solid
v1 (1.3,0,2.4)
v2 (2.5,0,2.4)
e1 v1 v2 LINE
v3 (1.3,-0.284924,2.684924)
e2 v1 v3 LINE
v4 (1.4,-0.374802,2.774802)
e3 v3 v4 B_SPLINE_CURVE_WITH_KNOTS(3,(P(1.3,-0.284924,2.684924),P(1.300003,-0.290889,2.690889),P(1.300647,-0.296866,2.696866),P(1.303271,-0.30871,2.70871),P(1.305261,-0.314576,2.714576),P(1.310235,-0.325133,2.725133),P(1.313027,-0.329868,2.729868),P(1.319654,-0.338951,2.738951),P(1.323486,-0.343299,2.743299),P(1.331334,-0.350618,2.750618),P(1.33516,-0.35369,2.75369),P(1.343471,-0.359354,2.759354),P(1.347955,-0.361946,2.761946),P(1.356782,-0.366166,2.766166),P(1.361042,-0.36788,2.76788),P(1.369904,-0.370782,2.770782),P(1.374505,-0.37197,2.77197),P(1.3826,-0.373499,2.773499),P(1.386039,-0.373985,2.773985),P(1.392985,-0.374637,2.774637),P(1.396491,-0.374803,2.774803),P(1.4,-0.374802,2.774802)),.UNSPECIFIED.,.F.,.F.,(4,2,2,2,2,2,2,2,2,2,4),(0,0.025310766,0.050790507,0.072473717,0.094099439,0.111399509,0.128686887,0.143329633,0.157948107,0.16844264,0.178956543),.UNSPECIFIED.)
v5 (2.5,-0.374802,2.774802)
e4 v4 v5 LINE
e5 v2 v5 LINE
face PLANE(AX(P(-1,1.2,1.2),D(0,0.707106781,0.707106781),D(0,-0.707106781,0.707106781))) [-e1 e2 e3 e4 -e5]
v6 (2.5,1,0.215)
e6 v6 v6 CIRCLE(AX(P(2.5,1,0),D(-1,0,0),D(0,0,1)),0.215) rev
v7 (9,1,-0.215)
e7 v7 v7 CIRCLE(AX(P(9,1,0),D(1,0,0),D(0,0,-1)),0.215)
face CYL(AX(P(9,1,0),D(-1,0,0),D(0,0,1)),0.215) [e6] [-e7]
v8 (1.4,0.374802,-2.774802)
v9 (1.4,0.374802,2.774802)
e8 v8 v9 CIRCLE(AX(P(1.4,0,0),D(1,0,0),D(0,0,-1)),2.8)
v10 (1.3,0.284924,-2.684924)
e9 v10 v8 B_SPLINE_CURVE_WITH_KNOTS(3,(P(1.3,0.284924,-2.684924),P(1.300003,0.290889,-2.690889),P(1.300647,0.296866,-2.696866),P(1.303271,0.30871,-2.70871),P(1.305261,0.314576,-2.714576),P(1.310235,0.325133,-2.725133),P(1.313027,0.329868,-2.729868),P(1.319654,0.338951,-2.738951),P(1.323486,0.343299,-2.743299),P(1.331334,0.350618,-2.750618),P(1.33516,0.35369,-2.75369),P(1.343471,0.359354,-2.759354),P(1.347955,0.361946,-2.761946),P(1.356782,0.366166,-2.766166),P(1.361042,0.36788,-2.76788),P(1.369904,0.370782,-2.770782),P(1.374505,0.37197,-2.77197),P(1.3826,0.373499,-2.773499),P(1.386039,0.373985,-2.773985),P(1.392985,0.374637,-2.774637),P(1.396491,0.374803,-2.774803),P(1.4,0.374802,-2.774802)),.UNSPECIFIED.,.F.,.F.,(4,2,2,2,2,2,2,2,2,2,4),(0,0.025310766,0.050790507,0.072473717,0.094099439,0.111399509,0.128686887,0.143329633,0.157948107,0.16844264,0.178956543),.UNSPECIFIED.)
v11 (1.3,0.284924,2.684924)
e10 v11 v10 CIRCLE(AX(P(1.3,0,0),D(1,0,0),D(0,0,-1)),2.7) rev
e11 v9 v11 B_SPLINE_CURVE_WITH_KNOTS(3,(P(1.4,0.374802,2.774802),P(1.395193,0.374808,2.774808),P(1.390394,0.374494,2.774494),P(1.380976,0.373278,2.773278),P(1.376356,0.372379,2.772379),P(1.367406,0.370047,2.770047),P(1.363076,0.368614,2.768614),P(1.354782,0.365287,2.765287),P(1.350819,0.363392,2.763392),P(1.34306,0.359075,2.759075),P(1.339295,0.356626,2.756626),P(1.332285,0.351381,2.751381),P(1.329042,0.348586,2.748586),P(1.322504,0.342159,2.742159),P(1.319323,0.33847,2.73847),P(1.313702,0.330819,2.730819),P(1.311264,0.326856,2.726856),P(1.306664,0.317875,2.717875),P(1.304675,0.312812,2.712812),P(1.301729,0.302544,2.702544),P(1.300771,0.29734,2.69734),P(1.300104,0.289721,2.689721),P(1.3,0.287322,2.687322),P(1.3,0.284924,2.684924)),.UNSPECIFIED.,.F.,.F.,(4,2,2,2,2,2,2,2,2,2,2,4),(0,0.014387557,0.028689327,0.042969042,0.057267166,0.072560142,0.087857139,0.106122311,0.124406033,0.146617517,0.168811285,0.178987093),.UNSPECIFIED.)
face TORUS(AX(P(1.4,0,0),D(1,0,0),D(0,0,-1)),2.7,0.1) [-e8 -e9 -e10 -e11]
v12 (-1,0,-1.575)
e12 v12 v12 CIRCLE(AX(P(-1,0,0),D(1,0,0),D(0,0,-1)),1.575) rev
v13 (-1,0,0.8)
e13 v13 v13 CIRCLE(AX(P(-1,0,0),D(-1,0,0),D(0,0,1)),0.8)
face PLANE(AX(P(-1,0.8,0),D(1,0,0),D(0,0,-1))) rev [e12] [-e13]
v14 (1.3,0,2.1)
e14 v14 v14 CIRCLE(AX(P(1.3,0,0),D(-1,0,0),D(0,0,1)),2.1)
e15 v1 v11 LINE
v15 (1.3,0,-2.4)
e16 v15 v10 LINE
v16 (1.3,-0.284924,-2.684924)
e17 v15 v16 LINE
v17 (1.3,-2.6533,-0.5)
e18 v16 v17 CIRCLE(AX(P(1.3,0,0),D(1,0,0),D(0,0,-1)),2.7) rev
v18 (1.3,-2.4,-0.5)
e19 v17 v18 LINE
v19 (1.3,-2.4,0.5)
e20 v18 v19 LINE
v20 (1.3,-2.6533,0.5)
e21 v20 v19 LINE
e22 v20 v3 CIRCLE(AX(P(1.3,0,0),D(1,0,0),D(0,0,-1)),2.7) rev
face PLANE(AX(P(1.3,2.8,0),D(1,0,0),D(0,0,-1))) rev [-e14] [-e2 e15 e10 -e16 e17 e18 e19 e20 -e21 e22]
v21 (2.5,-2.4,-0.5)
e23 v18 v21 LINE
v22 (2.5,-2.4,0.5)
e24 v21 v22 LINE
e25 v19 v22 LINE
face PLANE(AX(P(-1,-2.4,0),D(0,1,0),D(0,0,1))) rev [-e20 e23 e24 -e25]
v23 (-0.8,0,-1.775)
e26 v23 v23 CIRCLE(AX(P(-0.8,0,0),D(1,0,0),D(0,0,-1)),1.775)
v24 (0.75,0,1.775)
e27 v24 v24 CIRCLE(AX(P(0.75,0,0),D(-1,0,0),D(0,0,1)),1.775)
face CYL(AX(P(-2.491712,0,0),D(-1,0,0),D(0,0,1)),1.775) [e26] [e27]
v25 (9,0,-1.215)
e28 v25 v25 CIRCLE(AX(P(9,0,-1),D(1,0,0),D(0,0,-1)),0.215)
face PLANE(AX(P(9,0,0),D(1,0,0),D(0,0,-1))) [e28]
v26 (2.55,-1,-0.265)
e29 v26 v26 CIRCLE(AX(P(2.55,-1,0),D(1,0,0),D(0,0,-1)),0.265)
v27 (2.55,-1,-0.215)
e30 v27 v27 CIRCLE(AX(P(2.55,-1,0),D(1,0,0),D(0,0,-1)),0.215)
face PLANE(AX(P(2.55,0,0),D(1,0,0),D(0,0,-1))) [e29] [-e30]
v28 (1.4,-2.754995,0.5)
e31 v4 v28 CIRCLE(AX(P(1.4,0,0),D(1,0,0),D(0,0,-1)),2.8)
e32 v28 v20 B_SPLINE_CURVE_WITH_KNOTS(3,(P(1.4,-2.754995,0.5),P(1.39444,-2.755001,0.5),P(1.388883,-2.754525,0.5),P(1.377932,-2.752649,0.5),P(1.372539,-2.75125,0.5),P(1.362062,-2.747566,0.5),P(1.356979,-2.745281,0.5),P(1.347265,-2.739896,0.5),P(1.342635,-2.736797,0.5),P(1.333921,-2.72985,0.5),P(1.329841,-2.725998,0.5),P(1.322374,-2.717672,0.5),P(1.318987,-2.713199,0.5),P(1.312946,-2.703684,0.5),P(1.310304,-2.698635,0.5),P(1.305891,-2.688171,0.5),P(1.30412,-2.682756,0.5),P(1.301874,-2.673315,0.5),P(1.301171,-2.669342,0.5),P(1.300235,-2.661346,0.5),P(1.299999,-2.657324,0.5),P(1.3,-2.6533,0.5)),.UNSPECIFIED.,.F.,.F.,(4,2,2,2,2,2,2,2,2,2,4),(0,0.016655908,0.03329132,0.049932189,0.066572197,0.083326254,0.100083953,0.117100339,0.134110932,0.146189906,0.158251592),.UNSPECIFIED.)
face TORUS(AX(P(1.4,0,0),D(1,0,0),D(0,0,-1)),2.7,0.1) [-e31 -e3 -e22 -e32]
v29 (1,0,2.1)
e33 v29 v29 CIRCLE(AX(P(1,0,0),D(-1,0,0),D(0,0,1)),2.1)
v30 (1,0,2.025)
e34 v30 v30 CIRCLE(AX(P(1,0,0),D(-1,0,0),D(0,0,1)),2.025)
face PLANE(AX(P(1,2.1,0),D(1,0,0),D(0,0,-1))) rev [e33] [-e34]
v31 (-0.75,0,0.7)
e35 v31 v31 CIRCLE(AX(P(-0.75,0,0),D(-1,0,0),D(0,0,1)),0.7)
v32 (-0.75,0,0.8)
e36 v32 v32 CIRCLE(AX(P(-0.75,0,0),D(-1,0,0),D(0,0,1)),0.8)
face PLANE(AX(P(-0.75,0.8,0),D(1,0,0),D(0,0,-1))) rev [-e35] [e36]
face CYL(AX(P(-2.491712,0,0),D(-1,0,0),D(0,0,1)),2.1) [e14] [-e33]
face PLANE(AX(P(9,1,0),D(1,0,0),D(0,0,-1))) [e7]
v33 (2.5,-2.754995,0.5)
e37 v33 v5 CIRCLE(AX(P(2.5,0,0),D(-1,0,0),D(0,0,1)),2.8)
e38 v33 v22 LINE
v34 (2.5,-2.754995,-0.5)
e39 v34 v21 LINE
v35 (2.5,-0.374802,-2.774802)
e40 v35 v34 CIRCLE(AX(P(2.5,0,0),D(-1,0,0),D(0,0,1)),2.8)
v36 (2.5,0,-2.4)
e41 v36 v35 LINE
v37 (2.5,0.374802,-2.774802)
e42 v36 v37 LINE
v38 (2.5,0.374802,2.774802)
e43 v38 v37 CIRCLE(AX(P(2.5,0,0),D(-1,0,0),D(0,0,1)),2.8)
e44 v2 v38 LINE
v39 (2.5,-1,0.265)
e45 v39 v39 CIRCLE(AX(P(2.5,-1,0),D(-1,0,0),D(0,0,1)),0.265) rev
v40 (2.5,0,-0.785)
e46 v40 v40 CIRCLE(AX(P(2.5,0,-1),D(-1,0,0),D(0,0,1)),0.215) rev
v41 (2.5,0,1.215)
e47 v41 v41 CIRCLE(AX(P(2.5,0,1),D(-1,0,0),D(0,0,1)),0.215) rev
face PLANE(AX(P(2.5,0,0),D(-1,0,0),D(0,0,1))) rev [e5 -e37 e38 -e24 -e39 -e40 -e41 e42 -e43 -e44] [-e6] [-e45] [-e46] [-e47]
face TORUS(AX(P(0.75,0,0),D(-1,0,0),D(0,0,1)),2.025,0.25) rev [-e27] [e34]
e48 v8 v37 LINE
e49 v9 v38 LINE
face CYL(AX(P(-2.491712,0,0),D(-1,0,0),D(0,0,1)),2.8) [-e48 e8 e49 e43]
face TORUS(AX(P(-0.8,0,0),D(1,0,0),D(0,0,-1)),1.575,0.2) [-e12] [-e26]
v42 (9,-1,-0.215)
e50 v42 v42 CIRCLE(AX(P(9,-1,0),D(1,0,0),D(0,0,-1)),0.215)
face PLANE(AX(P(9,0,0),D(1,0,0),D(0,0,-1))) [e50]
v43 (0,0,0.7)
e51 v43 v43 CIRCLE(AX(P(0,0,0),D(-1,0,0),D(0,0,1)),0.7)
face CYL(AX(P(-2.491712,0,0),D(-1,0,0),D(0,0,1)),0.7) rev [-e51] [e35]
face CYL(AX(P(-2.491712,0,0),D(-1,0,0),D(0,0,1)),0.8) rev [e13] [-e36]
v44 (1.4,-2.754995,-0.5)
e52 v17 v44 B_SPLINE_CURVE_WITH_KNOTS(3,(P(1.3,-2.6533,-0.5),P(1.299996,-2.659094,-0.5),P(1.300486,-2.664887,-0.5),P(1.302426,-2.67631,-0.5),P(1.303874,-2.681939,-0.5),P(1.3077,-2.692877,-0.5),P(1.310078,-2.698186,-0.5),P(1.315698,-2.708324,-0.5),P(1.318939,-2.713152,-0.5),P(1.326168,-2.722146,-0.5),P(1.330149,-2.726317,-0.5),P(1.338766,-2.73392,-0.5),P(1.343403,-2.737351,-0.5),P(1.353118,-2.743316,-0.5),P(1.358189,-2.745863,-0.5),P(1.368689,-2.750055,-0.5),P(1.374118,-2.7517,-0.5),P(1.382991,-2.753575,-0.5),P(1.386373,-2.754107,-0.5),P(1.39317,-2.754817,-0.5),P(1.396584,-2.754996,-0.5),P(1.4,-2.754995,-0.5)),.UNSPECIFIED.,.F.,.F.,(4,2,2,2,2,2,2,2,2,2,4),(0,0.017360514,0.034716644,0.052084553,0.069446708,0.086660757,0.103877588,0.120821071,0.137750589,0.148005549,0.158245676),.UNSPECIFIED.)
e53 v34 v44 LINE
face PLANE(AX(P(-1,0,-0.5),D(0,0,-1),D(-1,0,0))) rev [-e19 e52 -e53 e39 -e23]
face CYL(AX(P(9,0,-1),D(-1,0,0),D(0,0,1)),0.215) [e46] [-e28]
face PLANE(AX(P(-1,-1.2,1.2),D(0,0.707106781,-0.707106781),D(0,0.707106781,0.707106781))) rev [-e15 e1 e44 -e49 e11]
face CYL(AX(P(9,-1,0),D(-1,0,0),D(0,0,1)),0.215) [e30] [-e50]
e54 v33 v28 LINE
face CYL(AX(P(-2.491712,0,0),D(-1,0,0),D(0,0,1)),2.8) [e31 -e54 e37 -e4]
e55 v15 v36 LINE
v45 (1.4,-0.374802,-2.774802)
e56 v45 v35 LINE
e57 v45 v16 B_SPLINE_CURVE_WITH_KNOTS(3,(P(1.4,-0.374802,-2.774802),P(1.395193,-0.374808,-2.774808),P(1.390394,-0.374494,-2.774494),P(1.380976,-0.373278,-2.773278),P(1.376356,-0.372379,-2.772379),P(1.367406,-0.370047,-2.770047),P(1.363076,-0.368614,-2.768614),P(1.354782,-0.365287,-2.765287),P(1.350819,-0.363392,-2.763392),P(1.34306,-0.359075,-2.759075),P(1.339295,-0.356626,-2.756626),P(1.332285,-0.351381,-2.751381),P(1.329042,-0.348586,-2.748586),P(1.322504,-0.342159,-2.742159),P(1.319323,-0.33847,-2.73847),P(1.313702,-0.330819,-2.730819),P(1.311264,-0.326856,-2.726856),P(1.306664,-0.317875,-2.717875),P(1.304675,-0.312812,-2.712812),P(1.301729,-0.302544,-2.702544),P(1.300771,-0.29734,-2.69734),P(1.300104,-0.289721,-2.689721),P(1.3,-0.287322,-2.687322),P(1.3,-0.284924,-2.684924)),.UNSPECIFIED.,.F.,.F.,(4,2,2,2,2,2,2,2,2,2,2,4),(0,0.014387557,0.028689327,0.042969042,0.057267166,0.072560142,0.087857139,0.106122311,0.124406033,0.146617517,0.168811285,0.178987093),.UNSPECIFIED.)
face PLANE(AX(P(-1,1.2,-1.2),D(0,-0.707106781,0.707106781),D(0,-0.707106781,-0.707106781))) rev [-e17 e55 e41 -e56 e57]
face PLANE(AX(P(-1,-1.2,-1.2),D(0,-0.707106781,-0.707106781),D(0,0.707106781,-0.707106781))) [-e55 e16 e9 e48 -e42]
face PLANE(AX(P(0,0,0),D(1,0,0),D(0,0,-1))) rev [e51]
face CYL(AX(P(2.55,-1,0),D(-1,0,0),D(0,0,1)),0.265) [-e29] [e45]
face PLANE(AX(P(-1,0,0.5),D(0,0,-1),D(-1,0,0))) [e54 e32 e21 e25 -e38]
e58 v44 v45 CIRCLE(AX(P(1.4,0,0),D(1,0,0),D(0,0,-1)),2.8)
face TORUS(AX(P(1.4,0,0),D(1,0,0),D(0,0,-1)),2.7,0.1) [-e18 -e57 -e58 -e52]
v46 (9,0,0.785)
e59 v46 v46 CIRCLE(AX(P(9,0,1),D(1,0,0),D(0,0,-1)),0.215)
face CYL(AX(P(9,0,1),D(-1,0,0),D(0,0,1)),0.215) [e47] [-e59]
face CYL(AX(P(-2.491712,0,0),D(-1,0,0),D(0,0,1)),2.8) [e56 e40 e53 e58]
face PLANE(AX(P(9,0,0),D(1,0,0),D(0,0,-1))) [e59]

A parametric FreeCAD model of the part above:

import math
import FreeCAD as App
import Part
import Sketcher

V = App.Vector
Q = App.Units.Quantity


def edges_at(feature, points):
    """Names of the edges that pass closest to the given points."""
    edges = feature.Shape.Edges
    near = lambda p: min(range(len(edges)), key=lambda i: edges[i].distToShape(Part.Vertex(*p))[0])
    return sorted({f"Edge{near(p) + 1}" for p in points})

doc = App.newDocument("Part")
body = doc.addObject("PartDesign::Body", "Body")

# Sketch on XY plane
sketch1 = body.newObject("Sketcher::SketchObject", "Sketch")
sketch1.AttachmentSupport = (doc.getObject("XY_Plane"), [""])
sketch1.MapMode = "FlatFace"
sketch1.addGeometry(Part.LineSegment(V(0, 0.7, 0), V(0, 0, 0)), False)
sketch1.addGeometry(Part.LineSegment(V(0, 0, 0), V(2.5, 0, 0)), False)
sketch1.addGeometry(Part.LineSegment(V(2.5, 0, 0), V(2.5, 2.8, 0)), False)
sketch1.addGeometry(Part.LineSegment(V(2.5, 2.8, 0), V(1.3, 2.8, 0)), False)
sketch1.addGeometry(Part.LineSegment(V(1.3, 2.8, 0), V(1.3, 2.1, 0)), False)
sketch1.addGeometry(Part.LineSegment(V(1.3, 2.1, 0), V(1, 2.1, 0)), False)
sketch1.addGeometry(Part.LineSegment(V(1, 2.1, 0), V(1, 2.02, 0)), False)
sketch1.addGeometry(Part.ArcOfCircle(Part.Circle(V(0.75, 2.03, 0), V(0, 0, 1), 0.25), math.radians(-90), math.radians(0)), False)
sketch1.addGeometry(Part.LineSegment(V(0.75, 1.77, 0), V(-1, 1.77, 0)), False)
sketch1.addGeometry(Part.LineSegment(V(-1, 1.77, 0), V(-1, 0.8, 0)), False)
sketch1.addGeometry(Part.LineSegment(V(-1, 0.8, 0), V(-0.75, 0.8, 0)), False)
sketch1.addGeometry(Part.LineSegment(V(-0.75, 0.8, 0), V(-0.75, 0.7, 0)), False)
sketch1.addGeometry(Part.LineSegment(V(-0.75, 0.7, 0), V(0, 0.7, 0)), False)
sketch1.addConstraint(Sketcher.Constraint("Coincident", 0, 2, 1, 1))
sketch1.addConstraint(Sketcher.Constraint("Coincident", 1, 2, 2, 1))
sketch1.addConstraint(Sketcher.Constraint("Coincident", 2, 2, 3, 1))
sketch1.addConstraint(Sketcher.Constraint("Coincident", 3, 2, 4, 1))
sketch1.addConstraint(Sketcher.Constraint("Coincident", 4, 2, 5, 1))
sketch1.addConstraint(Sketcher.Constraint("Coincident", 5, 2, 6, 1))
sketch1.addConstraint(Sketcher.Constraint("Tangent", 6, 2, 7, 2))
sketch1.addConstraint(Sketcher.Constraint("Tangent", 7, 1, 8, 1))
sketch1.addConstraint(Sketcher.Constraint("Coincident", 8, 2, 9, 1))
sketch1.addConstraint(Sketcher.Constraint("Coincident", 9, 2, 10, 1))
sketch1.addConstraint(Sketcher.Constraint("Coincident", 10, 2, 11, 1))
sketch1.addConstraint(Sketcher.Constraint("Coincident", 11, 2, 12, 1))
sketch1.addConstraint(Sketcher.Constraint("Coincident", 12, 2, 0, 1))
sketch1.addConstraint(Sketcher.Constraint("Vertical", 0))
sketch1.addConstraint(Sketcher.Constraint("Horizontal", 1))
sketch1.addConstraint(Sketcher.Constraint("Vertical", 2))
sketch1.addConstraint(Sketcher.Constraint("Horizontal", 3))
sketch1.addConstraint(Sketcher.Constraint("Vertical", 4))
sketch1.addConstraint(Sketcher.Constraint("Horizontal", 5))
sketch1.addConstraint(Sketcher.Constraint("Vertical", 6))
sketch1.addConstraint(Sketcher.Constraint("Horizontal", 8))
sketch1.addConstraint(Sketcher.Constraint("Vertical", 9))
sketch1.addConstraint(Sketcher.Constraint("Horizontal", 10))
sketch1.addConstraint(Sketcher.Constraint("Vertical", 11))
sketch1.addConstraint(Sketcher.Constraint("Horizontal", 12))
sketch1.addConstraint(Sketcher.Constraint("Coincident", 0, 2, -1, 1))
sketch1.addConstraint(Sketcher.Constraint("Equal", 0, 4))
sketch1.addConstraint(Sketcher.Constraint("Radius", 7, Q("0.25 mm")))
sketch1.addConstraint(Sketcher.Constraint("DistanceX", 1, 1, 1, 2, Q("2.5 mm")))
sketch1.addConstraint(Sketcher.Constraint("DistanceX", 3, 2, 3, 1, Q("1.2 mm")))
sketch1.addConstraint(Sketcher.Constraint("DistanceX", 5, 2, 5, 1, Q("0.3 mm")))
sketch1.addConstraint(Sketcher.Constraint("DistanceY", 0, 2, 0, 1, Q("0.7 mm")))
sketch1.addConstraint(Sketcher.Constraint("DistanceY", 2, 1, 2, 2, Q("2.8 mm")))
sketch1.addConstraint(Sketcher.Constraint("DistanceY", 11, 2, 11, 1, Q("0.1 mm")))
sketch1.addConstraint(Sketcher.Constraint("DistanceX", 8, 2, -1, 1, Q("1 mm")))
sketch1.addConstraint(Sketcher.Constraint("DistanceX", 10, 1, 10, 2, Q("0.25 mm")))
sketch1.addConstraint(Sketcher.Constraint("DistanceY", 6, 2, 6, 1, Q("0.075 mm")))
revolution = body.newObject("PartDesign::Revolution", "Revolution")
revolution.Profile = sketch1
revolution.ReferenceAxis = (sketch1, ["H_Axis"])
revolution.Angle = 360

# Sketch on YZ plane
sketch2 = body.newObject("Sketcher::SketchObject", "Sketch001")
sketch2.AttachmentSupport = (doc.getObject("YZ_Plane"), [""])
sketch2.MapMode = "FlatFace"
sketch2.AttachmentOffset = App.Placement(V(0, 0, 2.5), App.Rotation())
sketch2.addGeometry(Part.Circle(V(-1, 0, 0), V(0, 0, 1), 0.21), False)
sketch2.addGeometry(Part.Circle(V(0, 1, 0), V(0, 0, 1), 0.21), False)
sketch2.addGeometry(Part.Circle(V(0, -1, 0), V(0, 0, 1), 0.21), False)
sketch2.addGeometry(Part.Circle(V(1, 0, 0), V(0, 0, 1), 0.21), False)
sketch2.addConstraint(Sketcher.Constraint("Equal", 0, 1))
sketch2.addConstraint(Sketcher.Constraint("Equal", 1, 2))
sketch2.addConstraint(Sketcher.Constraint("Equal", 2, 3))
sketch2.addConstraint(Sketcher.Constraint("Symmetric", 1, 3, 2, 3, -1, 1))
sketch2.addConstraint(Sketcher.Constraint("Symmetric", 0, 3, 3, 3, -1, 1))
sketch2.addConstraint(Sketcher.Constraint("PointOnObject", 0, 3, -1))
sketch2.addConstraint(Sketcher.Constraint("PointOnObject", 1, 3, -2))
sketch2.addConstraint(Sketcher.Constraint("Diameter", 0, Q("0.43 mm")))
sketch2.addConstraint(Sketcher.Constraint("DistanceX", 0, 3, -1, 1, Q("1 mm")))
sketch2.addConstraint(Sketcher.Constraint("DistanceY", -1, 1, 1, 3, Q("1 mm")))
pad1 = body.newObject("PartDesign::Pad", "Pad")
pad1.Profile = sketch2
pad1.Length = 6.5

# Sketch on YZ plane
sketch3 = body.newObject("Sketcher::SketchObject", "Sketch002")
sketch3.AttachmentSupport = (doc.getObject("YZ_Plane"), [""])
sketch3.MapMode = "FlatFace"
sketch3.AttachmentOffset = App.Placement(V(0, 0, 2.5), App.Rotation())
sketch3.addGeometry(Part.LineSegment(V(0, 2.4, 0), V(0.37, 2.77, 0)), False)
sketch3.addGeometry(Part.ArcOfCircle(Part.Circle(V(0, 0, 0), V(0, 0, 1), 2.8), math.radians(82.31), math.radians(97.69)), False)
sketch3.addGeometry(Part.LineSegment(V(-0.37, 2.77, 0), V(0, 2.4, 0)), False)
sketch3.addGeometry(Part.LineSegment(V(0.37, -2.77, 0), V(0, -2.4, 0)), False)
sketch3.addGeometry(Part.LineSegment(V(0, -2.4, 0), V(-0.37, -2.77, 0)), False)
sketch3.addGeometry(Part.ArcOfCircle(Part.Circle(V(0, 0, 0), V(0, 0, 1), 2.8), math.radians(-97.69), math.radians(-90)), False)
sketch3.addGeometry(Part.ArcOfCircle(Part.Circle(V(0, 0, 0), V(0, 0, 1), 2.8), math.radians(-90), math.radians(-82.31)), False)
sketch3.addGeometry(Part.ArcOfCircle(Part.Circle(V(0, 0, 0), V(0, 0, 1), 2.8), math.radians(170), math.radians(190)), False)
sketch3.addGeometry(Part.LineSegment(V(-2.75, -0.5, 0), V(-2.4, -0.5, 0)), False)
sketch3.addGeometry(Part.LineSegment(V(-2.4, -0.5, 0), V(-2.4, 0.5, 0)), False)
sketch3.addGeometry(Part.LineSegment(V(-2.4, 0.5, 0), V(-2.75, 0.5, 0)), False)
sketch3.addConstraint(Sketcher.Constraint("Coincident", 0, 2, 1, 1))
sketch3.addConstraint(Sketcher.Constraint("Coincident", 1, 2, 2, 1))
sketch3.addConstraint(Sketcher.Constraint("Coincident", 2, 2, 0, 1))
sketch3.addConstraint(Sketcher.Constraint("Coincident", 3, 2, 4, 1))
sketch3.addConstraint(Sketcher.Constraint("Coincident", 4, 2, 5, 1))
sketch3.addConstraint(Sketcher.Constraint("Tangent", 5, 2, 6, 1))
sketch3.addConstraint(Sketcher.Constraint("Coincident", 6, 2, 3, 1))
sketch3.addConstraint(Sketcher.Constraint("Coincident", 7, 2, 8, 1))
sketch3.addConstraint(Sketcher.Constraint("Coincident", 8, 2, 9, 1))
sketch3.addConstraint(Sketcher.Constraint("Coincident", 9, 2, 10, 1))
sketch3.addConstraint(Sketcher.Constraint("Coincident", 10, 2, 7, 1))
sketch3.addConstraint(Sketcher.Constraint("Horizontal", 8))
sketch3.addConstraint(Sketcher.Constraint("Vertical", 9))
sketch3.addConstraint(Sketcher.Constraint("Horizontal", 10))
sketch3.addConstraint(Sketcher.Constraint("Coincident", 1, 3, -1, 1))
sketch3.addConstraint(Sketcher.Constraint("Coincident", 5, 3, -1, 1))
sketch3.addConstraint(Sketcher.Constraint("Coincident", 7, 3, -1, 1))
sketch3.addConstraint(Sketcher.Constraint("Equal", 1, 5))
sketch3.addConstraint(Sketcher.Constraint("Equal", 5, 6))
sketch3.addConstraint(Sketcher.Constraint("Equal", 6, 7))
sketch3.addConstraint(Sketcher.Constraint("Symmetric", 2, 2, 3, 2, -1, 1))
sketch3.addConstraint(Sketcher.Constraint("PointOnObject", 2, 2, -2))
sketch3.addConstraint(Sketcher.Constraint("PointOnObject", 5, 2, -2))
sketch3.addConstraint(Sketcher.Constraint("Perpendicular", 0, 2))
sketch3.addConstraint(Sketcher.Constraint("Parallel", 2, 3))
sketch3.addConstraint(Sketcher.Constraint("Perpendicular", 3, 4))
sketch3.addConstraint(Sketcher.Constraint("Horizontal", 0, 2, 1, 2))
sketch3.addConstraint(Sketcher.Constraint("Vertical", 7, 2, 10, 2))
sketch3.addConstraint(Sketcher.Constraint("Radius", 1, Q("2.8 mm")))
sketch3.addConstraint(Sketcher.Constraint("DistanceY", 9, 1, 9, 2, Q("1 mm")))
sketch3.addConstraint(Sketcher.Constraint("DistanceY", -1, 1, 2, 2, Q("2.4 mm")))
sketch3.addConstraint(Sketcher.Constraint("DistanceX", 8, 2, -1, 1, Q("2.4 mm")))
pocket1 = body.newObject("PartDesign::Pocket", "Pocket")
pocket1.Profile = sketch3
pocket1.Type = "ThroughAll"
doc.recompute()

fillet = body.newObject("PartDesign::Fillet", "Fillet")
fillet.Base = (pocket1, edges_at(pocket1, [(-1, 0, -1.775)]))
fillet.Radius = 0.2
doc.recompute()

fillet2 = body.newObject("PartDesign::Fillet", "Fillet001")
fillet2.Base = (fillet, edges_at(fillet, [(1.3, 2.8, 0), (1.3, -1.935, -2.024), (1.3, -1.935, 2.024)]))
fillet2.Radius = 0.1

# Sketch on YZ plane
sketch4 = body.newObject("Sketcher::SketchObject", "Sketch003")
sketch4.AttachmentSupport = (doc.getObject("YZ_Plane"), [""])
sketch4.MapMode = "FlatFace"
sketch4.AttachmentOffset = App.Placement(V(0, 0, 2.5), App.Rotation())
sketch4.addGeometry(Part.Circle(V(-1, 0, 0), V(0, 0, 1), 0.27), False)
sketch4.addGeometry(Part.Circle(V(-1, 0, 0), V(0, 0, 1), 0.21), False)
sketch4.addConstraint(Sketcher.Constraint("Coincident", 1, 3, 0, 3))
sketch4.addConstraint(Sketcher.Constraint("PointOnObject", 0, 3, -1))
sketch4.addConstraint(Sketcher.Constraint("Diameter", 0, Q("0.53 mm")))
sketch4.addConstraint(Sketcher.Constraint("Diameter", 1, Q("0.43 mm")))
sketch4.addConstraint(Sketcher.Constraint("DistanceX", 0, 3, -1, 1, Q("1 mm")))
pad2 = body.newObject("PartDesign::Pad", "Pad001")
pad2.Profile = sketch4
pad2.Length = 0.05

doc.recompute()
